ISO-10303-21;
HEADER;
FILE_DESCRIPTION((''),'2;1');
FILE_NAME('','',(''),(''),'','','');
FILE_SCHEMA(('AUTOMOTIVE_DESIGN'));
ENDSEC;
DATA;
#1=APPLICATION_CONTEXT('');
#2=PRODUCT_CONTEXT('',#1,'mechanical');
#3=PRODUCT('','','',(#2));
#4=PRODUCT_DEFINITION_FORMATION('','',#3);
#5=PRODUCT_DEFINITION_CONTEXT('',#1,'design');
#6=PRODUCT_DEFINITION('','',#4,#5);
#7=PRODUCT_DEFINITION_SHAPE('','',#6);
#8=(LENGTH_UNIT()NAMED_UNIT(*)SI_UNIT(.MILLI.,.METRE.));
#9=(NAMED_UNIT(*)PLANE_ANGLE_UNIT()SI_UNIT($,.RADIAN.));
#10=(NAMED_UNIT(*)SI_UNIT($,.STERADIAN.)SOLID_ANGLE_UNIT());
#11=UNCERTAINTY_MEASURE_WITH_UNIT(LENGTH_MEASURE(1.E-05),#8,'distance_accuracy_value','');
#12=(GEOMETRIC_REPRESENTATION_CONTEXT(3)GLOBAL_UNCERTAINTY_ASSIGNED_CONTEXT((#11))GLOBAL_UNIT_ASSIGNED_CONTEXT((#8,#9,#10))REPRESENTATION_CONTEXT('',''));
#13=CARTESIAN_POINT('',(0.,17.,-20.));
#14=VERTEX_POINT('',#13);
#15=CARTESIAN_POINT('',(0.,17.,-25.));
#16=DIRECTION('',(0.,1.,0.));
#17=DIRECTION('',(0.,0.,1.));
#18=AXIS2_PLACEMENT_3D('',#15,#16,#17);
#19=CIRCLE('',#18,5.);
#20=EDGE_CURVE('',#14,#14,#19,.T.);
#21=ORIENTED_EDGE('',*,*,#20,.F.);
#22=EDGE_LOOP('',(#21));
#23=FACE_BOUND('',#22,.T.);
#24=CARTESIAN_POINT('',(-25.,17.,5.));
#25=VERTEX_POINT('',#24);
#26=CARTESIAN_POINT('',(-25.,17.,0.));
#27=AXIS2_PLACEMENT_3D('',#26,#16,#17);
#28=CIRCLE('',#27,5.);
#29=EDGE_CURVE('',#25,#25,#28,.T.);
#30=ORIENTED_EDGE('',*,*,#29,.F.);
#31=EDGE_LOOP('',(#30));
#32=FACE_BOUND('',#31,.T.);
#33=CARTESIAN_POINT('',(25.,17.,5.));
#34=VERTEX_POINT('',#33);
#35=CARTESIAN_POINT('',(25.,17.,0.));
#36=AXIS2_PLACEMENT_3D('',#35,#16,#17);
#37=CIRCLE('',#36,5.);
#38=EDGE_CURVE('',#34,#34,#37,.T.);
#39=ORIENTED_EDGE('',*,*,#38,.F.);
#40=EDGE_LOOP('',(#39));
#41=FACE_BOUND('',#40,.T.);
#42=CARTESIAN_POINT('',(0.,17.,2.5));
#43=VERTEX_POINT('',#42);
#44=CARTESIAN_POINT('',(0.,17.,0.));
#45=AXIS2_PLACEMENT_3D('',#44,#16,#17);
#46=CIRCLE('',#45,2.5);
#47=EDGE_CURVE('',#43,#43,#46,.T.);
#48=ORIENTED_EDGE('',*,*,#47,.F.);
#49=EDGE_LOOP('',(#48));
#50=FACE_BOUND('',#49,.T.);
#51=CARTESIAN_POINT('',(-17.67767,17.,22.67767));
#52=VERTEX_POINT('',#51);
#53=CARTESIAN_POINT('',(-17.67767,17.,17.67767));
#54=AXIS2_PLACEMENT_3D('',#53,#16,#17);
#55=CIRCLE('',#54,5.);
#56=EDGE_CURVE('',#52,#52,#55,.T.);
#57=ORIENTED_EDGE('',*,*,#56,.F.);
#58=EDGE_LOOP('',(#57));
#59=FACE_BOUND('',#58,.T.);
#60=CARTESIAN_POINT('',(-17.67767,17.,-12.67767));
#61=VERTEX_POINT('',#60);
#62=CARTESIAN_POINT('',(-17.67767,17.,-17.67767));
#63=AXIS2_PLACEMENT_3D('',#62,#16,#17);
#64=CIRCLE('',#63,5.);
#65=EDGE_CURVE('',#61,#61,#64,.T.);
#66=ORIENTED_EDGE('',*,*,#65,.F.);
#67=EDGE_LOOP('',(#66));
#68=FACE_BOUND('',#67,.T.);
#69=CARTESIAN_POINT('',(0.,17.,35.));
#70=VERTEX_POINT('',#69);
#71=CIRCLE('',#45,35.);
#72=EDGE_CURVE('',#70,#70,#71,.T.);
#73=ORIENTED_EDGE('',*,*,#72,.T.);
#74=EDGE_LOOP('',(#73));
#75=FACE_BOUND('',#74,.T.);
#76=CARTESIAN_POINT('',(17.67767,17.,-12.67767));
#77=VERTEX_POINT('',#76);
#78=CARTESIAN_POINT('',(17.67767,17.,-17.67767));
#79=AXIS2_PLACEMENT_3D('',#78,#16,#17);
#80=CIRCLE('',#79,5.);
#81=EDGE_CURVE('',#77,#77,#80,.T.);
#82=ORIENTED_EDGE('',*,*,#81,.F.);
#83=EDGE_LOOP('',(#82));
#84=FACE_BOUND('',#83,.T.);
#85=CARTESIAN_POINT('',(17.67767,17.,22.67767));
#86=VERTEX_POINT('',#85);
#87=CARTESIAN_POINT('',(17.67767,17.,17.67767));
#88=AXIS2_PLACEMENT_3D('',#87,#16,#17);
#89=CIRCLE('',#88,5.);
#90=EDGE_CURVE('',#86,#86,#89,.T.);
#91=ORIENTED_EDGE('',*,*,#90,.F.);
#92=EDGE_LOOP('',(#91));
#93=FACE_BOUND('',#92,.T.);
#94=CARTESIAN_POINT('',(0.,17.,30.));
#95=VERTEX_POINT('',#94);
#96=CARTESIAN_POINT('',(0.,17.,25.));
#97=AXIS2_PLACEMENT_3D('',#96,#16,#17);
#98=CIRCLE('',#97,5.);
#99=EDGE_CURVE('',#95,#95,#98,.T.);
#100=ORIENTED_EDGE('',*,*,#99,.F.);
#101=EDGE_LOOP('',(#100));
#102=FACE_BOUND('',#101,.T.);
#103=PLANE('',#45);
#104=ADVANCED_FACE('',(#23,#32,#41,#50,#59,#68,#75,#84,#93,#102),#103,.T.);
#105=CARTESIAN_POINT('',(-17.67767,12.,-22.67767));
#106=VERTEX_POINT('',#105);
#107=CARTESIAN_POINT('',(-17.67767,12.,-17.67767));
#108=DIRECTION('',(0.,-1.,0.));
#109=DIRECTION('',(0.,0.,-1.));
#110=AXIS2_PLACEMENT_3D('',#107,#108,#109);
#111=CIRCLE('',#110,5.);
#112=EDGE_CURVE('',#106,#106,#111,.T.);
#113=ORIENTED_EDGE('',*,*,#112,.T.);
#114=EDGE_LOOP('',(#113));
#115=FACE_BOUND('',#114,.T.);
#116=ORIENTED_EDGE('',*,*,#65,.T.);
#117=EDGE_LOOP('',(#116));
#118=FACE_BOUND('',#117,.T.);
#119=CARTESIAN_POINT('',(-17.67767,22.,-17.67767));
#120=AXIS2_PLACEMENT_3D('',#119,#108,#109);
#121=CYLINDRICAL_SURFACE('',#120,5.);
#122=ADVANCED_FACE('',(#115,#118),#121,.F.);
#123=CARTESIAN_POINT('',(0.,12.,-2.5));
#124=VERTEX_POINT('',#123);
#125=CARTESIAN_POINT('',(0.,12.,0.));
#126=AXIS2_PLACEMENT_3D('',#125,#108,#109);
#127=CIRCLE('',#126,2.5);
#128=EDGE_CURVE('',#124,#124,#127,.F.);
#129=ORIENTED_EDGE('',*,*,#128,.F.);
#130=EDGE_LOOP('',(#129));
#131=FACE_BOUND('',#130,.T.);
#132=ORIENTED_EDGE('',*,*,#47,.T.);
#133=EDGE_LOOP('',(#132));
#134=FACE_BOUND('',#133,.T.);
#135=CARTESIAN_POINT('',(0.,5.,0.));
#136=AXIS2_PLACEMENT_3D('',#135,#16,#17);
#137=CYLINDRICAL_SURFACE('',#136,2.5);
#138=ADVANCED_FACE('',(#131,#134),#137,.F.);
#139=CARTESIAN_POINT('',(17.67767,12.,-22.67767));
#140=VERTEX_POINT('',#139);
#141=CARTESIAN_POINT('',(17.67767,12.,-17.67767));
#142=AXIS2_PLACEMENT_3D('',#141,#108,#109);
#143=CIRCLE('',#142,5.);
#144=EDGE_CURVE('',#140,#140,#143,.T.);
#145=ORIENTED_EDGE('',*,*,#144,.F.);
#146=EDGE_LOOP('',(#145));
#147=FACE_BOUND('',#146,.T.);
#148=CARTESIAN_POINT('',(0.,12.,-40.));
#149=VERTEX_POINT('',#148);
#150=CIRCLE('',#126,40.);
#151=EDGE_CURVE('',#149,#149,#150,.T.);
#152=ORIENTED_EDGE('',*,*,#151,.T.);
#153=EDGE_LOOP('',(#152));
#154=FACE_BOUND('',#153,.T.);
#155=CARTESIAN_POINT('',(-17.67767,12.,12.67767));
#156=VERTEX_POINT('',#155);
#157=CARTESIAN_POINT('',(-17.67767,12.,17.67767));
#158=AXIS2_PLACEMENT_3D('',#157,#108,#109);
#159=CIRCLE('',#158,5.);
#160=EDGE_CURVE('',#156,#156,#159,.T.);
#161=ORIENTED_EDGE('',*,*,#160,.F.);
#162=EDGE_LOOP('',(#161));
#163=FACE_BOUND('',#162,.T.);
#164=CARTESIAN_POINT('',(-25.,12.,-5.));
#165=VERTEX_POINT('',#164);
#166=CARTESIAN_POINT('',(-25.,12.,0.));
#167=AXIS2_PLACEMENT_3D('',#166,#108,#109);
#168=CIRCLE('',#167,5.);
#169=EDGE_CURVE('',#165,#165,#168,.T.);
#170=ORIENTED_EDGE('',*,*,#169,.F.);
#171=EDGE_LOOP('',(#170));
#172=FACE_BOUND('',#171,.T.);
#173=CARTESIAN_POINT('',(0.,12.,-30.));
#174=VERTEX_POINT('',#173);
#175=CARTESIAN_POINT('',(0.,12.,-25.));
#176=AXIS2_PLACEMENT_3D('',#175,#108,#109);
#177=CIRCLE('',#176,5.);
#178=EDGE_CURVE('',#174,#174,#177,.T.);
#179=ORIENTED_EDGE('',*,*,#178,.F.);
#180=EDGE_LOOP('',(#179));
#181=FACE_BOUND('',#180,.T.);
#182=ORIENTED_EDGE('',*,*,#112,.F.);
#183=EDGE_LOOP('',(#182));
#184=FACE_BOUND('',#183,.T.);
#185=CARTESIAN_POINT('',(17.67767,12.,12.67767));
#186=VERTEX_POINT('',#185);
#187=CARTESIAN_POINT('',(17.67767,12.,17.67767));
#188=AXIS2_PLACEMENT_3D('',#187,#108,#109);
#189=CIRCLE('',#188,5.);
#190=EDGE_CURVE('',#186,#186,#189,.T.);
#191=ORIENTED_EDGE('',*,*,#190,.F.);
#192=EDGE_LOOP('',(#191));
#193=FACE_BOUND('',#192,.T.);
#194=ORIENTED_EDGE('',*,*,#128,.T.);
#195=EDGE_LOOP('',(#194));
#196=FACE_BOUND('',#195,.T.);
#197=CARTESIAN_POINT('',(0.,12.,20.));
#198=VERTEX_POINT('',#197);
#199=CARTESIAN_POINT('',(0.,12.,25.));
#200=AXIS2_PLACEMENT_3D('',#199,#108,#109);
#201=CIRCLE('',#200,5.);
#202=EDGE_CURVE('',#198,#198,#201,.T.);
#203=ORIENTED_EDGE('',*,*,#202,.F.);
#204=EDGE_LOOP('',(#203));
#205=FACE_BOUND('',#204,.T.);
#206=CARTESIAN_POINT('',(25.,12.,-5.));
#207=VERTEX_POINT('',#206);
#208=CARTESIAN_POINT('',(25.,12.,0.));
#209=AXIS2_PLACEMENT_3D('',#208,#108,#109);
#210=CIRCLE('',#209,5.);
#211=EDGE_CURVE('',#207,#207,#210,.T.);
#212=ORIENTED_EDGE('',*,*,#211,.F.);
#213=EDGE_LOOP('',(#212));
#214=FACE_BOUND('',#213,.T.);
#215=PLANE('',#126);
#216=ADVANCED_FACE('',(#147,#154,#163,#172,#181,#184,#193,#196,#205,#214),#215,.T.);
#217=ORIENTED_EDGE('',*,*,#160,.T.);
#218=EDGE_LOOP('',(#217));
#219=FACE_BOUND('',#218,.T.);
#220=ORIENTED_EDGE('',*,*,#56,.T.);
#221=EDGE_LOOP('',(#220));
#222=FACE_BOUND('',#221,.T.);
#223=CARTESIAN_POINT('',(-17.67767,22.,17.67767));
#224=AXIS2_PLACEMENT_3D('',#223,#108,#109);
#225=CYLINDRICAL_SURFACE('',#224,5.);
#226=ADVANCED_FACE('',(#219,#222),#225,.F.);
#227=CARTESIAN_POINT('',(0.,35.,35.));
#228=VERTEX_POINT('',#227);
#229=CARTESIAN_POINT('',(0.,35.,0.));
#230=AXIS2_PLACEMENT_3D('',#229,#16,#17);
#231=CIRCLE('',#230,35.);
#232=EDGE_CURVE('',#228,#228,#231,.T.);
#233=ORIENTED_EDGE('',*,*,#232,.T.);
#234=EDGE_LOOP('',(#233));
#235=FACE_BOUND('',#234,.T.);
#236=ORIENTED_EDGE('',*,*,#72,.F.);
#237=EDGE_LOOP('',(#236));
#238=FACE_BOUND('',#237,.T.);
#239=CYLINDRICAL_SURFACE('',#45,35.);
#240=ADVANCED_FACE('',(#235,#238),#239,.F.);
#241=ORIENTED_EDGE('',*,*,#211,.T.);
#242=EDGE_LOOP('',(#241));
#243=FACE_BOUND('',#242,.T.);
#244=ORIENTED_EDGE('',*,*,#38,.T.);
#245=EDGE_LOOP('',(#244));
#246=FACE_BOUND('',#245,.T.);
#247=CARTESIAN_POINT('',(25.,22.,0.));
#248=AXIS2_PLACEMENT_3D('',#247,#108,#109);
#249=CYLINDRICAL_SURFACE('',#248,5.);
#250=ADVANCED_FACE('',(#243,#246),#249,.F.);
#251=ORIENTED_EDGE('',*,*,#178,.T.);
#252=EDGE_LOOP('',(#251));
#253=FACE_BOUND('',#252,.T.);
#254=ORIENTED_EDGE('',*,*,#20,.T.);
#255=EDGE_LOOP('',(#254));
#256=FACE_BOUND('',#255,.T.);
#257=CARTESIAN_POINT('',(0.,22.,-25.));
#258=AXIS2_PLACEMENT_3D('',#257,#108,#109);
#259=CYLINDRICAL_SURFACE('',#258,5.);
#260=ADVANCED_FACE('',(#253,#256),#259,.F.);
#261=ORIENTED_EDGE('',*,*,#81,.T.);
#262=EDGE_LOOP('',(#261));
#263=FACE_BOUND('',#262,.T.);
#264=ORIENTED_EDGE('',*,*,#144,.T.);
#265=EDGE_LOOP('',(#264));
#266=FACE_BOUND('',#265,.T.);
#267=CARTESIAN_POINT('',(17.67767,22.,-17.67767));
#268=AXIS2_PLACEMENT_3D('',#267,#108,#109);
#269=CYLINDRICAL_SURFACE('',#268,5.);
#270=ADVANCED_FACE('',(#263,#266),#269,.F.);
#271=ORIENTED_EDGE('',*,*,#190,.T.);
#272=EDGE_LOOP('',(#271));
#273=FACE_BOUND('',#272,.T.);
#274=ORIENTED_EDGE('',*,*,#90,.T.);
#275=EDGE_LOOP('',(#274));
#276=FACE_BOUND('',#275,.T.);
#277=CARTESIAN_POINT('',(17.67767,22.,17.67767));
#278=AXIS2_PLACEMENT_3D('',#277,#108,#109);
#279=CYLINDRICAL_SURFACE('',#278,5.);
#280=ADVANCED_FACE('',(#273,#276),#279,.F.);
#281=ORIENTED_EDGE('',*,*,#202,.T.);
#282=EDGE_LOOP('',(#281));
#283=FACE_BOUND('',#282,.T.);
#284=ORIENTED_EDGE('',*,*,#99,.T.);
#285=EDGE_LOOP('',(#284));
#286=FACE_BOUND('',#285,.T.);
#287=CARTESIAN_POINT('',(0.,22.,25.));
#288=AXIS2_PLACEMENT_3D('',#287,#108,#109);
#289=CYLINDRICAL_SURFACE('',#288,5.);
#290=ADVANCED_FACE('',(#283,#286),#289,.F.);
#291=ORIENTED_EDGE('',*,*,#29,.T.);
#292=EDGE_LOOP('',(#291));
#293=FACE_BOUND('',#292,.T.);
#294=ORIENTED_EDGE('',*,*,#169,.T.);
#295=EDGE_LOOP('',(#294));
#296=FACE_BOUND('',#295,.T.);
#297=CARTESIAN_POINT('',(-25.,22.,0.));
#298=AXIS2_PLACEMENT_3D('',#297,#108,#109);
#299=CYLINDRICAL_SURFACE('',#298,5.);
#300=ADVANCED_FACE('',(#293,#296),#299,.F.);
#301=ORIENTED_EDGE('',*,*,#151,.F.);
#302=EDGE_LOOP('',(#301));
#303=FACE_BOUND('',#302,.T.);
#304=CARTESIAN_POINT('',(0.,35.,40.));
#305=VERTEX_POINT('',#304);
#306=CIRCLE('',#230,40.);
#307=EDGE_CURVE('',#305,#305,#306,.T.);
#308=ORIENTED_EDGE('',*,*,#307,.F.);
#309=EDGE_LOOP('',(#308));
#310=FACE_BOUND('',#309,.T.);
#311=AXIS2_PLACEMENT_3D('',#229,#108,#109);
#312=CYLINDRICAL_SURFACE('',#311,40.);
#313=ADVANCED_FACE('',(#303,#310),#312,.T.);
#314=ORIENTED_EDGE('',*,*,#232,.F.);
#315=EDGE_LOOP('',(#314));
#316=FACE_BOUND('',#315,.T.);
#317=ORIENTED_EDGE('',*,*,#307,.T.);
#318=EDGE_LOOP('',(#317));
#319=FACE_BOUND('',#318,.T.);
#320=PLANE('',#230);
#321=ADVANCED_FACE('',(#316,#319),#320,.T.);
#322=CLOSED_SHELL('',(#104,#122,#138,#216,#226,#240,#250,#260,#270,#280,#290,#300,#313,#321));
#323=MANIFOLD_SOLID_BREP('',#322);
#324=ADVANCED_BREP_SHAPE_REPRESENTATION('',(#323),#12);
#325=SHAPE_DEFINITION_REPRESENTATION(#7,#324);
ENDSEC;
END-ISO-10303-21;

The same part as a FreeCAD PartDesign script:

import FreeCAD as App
import Part
import Sketcher
from FreeCAD import Vector

doc = App.newDocument("Part")
body = doc.addObject("PartDesign::Body", "Body")

# Sketch on XZ plane
sketch1 = body.newObject("Sketcher::SketchObject", "Sketch")
sketch1.AttachmentSupport = (doc.getObject("XZ_Plane"), [""])
sketch1.MapMode = "FlatFace"
sketch1.addGeometry(Part.Circle(Vector(0, 0, 0), Vector(0, 0, 1), 40), False)
sketch1.addConstraint([
    Sketcher.Constraint("Coincident", 0, 3, -1, 1),
    Sketcher.Constraint("Diameter", 0, 80.0),
])
pad1 = body.newObject("PartDesign::Pad", "Pad")
pad1.Profile = sketch1
pad1.Length = 35
pad1.Reversed = True

# Sketch on XZ plane
sketch2 = body.newObject("Sketcher::SketchObject", "Sketch001")
sketch2.AttachmentSupport = (doc.getObject("XZ_Plane"), [""])
sketch2.MapMode = "FlatFace"
sketch2.AttachmentOffset = App.Placement(Vector(0, 0, -35), App.Rotation())
sketch2.addGeometry(Part.Circle(Vector(0, 0, 0), Vector(0, 0, 1), 35), False)
sketch2.addConstraint([
    Sketcher.Constraint("Coincident", 0, 3, -1, 1),
    Sketcher.Constraint("Diameter", 0, 70.0),
])
pocket1 = body.newObject("PartDesign::Pocket", "Pocket")
pocket1.Profile = sketch2
pocket1.Length = 18
pocket1.Reversed = True

# Sketch on XZ plane
sketch3 = body.newObject("Sketcher::SketchObject", "Sketch002")
sketch3.AttachmentSupport = (doc.getObject("XZ_Plane"), [""])
sketch3.MapMode = "FlatFace"
sketch3.AttachmentOffset = App.Placement(Vector(0, 0, -17), App.Rotation())
sketch3.addGeometry(Part.Circle(Vector(0, 0, 0), Vector(0, 0, 1), 2.5), False)
sketch3.addConstraint([
    Sketcher.Constraint("Coincident", 0, 3, -1, 1),
    Sketcher.Constraint("Diameter", 0, 5.0),
])
pocket2 = body.newObject("PartDesign::Pocket", "Pocket001")
pocket2.Profile = sketch3
pocket2.Length = 12
pocket2.Reversed = True

# Sketch on XZ plane
sketch4 = body.newObject("Sketcher::SketchObject", "Sketch003")
sketch4.AttachmentSupport = (doc.getObject("XZ_Plane"), [""])
sketch4.MapMode = "FlatFace"
sketch4.addGeometry(Part.Circle(Vector(0, 0, 0), Vector(0, 0, 1), 40), False)
sketch4.addConstraint([
    Sketcher.Constraint("Coincident", 0, 3, -1, 1),
    Sketcher.Constraint("Diameter", 0, 80.0),
])
pocket3 = body.newObject("PartDesign::Pocket", "Pocket002")
pocket3.Profile = sketch4
pocket3.Length = 12

# Sketch on XZ plane
sketch5 = body.newObject("Sketcher::SketchObject", "Sketch004")
sketch5.AttachmentSupport = (doc.getObject("XZ_Plane"), [""])
sketch5.MapMode = "FlatFace"
sketch5.AttachmentOffset = App.Placement(Vector(0, 0, -12), App.Rotation())
sketch5.addGeometry([
    Part.Circle(Vector(-25, 0, 0), Vector(0, 0, 1), 5),  # 0
    Part.Circle(Vector(-17.67767, 17.67767, 0), Vector(0, 0, 1), 5),  # 1
    Part.Circle(Vector(0, 25, 0), Vector(0, 0, 1), 5),  # 2
    Part.Circle(Vector(17.67767, 17.67767, 0), Vector(0, 0, 1), 5),  # 3
    Part.Circle(Vector(25, 0, 0), Vector(0, 0, 1), 5),  # 4
    Part.Circle(Vector(17.67767, -17.67767, 0), Vector(0, 0, 1), 5),  # 5
    Part.Circle(Vector(0, -25, 0), Vector(0, 0, 1), 5),  # 6
    Part.Circle(Vector(-17.67767, -17.67767, 0), Vector(0, 0, 1), 5),  # 7
], False)
sketch5.addConstraint([
    Sketcher.Constraint("Equal", 0, 1),
    Sketcher.Constraint("Equal", 1, 2),
    Sketcher.Constraint("Equal", 2, 3),
    Sketcher.Constraint("Equal", 3, 4),
    Sketcher.Constraint("Equal", 4, 5),
    Sketcher.Constraint("Equal", 5, 6),
    Sketcher.Constraint("Equal", 6, 7),
    Sketcher.Constraint("Symmetric", 0, 3, 4, 3, -1, 1),
    Sketcher.Constraint("Symmetric", 1, 3, 5, 3, -1, 1),
    Sketcher.Constraint("Symmetric", 2, 3, 6, 3, -1, 1),
    Sketcher.Constraint("Symmetric", 3, 3, 7, 3, -1, 1),
    Sketcher.Constraint("Symmetric", 1, 3, 3, 3, -2),
    Sketcher.Constraint("PointOnObject", 0, 3, -1),
    Sketcher.Constraint("PointOnObject", 2, 3, -2),
    Sketcher.Constraint("Diameter", 0, 10.0),
    Sketcher.Constraint("DistanceX", 0, 3, -1, 1, 25.0),
    Sketcher.Constraint("DistanceY", -1, 1, 2, 3, 25.0),
    Sketcher.Constraint("DistanceX", 1, 3, -1, 1, 17.67767),
    Sketcher.Constraint("DistanceY", -1, 1, 1, 3, 17.67767),
])
pocket4 = body.newObject("PartDesign::Pocket", "Pocket003")
pocket4.Profile = sketch5
pocket4.Length = 10

doc.recompute()
